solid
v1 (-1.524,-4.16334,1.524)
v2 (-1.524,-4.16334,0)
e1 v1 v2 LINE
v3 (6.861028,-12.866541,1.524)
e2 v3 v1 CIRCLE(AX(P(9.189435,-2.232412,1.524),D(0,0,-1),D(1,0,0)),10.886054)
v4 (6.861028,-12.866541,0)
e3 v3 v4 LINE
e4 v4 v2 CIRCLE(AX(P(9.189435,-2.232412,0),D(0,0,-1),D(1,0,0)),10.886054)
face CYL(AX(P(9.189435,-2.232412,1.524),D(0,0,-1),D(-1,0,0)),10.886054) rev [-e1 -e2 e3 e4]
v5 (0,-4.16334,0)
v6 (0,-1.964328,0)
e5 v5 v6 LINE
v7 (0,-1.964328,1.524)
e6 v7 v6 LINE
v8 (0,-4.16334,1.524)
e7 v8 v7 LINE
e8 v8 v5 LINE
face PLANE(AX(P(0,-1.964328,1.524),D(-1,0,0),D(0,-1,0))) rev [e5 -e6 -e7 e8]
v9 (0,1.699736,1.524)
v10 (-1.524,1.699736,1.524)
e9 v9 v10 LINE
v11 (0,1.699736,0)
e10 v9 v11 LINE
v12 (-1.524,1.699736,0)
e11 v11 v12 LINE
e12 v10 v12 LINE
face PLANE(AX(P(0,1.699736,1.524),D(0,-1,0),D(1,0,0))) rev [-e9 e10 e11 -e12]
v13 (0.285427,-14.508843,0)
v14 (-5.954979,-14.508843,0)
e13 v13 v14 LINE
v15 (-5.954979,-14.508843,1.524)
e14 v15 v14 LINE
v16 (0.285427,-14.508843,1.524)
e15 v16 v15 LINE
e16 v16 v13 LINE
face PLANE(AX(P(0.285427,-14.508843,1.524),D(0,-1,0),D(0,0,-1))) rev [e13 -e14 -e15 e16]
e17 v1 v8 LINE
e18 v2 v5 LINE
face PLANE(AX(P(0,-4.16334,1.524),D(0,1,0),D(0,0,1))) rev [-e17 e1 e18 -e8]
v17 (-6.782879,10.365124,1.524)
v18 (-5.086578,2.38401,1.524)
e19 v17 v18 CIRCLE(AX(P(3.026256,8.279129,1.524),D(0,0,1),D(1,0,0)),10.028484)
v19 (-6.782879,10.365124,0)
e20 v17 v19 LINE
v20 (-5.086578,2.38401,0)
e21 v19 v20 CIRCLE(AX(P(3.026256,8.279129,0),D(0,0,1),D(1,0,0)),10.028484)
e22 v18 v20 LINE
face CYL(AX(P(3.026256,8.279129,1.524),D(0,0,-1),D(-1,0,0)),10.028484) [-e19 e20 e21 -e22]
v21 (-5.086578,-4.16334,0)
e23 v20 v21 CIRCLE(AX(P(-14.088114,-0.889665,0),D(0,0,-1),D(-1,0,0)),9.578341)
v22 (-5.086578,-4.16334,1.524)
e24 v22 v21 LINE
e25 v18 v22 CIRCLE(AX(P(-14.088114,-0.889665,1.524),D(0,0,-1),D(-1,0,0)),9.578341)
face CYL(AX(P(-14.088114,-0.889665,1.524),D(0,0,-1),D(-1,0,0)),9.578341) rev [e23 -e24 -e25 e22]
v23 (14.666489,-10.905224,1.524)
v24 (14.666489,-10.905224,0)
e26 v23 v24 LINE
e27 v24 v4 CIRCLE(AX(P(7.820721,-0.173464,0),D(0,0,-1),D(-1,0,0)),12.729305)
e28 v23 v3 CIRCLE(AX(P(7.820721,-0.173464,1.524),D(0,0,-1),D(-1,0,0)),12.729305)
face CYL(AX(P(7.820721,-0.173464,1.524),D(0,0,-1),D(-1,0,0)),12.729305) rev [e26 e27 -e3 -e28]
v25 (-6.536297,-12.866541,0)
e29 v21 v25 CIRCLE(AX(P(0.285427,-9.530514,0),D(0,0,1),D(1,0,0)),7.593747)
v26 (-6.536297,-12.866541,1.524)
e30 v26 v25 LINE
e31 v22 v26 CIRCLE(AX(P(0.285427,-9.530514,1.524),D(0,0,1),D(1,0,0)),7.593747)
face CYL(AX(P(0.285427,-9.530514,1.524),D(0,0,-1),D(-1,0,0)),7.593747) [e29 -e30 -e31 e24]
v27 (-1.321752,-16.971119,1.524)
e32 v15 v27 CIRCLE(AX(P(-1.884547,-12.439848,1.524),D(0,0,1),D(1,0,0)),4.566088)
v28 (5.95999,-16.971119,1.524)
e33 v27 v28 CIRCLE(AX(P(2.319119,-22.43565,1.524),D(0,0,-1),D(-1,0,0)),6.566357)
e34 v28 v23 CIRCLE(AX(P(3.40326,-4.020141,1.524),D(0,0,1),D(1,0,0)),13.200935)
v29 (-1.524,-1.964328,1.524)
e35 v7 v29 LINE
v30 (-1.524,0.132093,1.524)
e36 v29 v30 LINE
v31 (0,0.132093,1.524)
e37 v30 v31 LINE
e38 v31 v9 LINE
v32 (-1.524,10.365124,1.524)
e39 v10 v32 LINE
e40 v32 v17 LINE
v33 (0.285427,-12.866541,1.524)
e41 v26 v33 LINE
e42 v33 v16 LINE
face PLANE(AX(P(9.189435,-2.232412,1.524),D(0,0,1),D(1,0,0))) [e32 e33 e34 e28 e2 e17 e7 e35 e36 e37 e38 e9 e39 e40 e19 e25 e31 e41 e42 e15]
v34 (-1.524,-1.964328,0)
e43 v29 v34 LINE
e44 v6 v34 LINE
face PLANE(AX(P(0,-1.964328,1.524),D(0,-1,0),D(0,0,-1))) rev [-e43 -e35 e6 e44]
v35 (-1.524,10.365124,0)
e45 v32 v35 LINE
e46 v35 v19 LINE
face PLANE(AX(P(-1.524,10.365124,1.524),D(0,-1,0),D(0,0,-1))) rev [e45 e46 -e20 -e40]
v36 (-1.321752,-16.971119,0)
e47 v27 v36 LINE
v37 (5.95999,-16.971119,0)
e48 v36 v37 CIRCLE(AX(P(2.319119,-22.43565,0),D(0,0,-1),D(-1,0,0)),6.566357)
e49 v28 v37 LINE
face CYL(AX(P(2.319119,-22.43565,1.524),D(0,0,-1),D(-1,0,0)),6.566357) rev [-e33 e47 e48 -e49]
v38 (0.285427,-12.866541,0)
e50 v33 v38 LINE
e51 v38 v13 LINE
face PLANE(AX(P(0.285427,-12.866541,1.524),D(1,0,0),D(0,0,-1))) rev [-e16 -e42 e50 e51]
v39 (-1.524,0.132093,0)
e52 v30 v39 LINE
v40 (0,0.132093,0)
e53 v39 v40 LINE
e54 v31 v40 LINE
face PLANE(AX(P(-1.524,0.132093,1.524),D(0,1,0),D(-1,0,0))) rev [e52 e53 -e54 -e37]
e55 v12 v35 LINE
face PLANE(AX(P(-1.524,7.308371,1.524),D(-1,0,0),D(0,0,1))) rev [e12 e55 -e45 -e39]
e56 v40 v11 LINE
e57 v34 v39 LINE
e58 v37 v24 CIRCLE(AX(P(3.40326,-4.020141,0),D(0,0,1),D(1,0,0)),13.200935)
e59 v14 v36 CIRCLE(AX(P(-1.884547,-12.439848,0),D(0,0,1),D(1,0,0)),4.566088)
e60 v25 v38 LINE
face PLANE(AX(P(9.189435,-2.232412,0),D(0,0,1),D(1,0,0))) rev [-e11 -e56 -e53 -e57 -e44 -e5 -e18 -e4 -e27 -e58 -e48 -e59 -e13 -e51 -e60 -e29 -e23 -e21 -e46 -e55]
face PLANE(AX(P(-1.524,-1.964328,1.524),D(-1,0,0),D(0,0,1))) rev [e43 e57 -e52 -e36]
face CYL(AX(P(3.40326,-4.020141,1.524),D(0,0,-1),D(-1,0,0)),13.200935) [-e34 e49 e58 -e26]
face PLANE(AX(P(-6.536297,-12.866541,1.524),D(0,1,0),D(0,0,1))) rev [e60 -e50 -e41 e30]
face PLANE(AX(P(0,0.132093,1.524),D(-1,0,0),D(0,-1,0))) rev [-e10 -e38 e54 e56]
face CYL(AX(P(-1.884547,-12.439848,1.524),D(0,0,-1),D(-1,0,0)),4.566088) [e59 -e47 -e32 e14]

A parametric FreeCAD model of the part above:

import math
import FreeCAD as App
import Part
import Sketcher

V = App.Vector
Q = App.Units.Quantity

doc = App.newDocument("Part")
body = doc.addObject("PartDesign::Body", "Body")

# Sketch on XY plane
sketch1 = doc.addObject("Sketcher::SketchObject", "Sketch")
body.addObject(sketch1)
sketch1.AttachmentSupport = (doc.XY_Plane, [""])
sketch1.MapMode = "FlatFace"
sketch1.addGeometry([
    Part.LineSegment(V(0, -2, 0), V(-1.5, -2, 0)),  # 0
    Part.LineSegment(V(-1.5, -2, 0), V(-1.5, 0.1, 0)),  # 1
    Part.LineSegment(V(-1.5, 0.1, 0), V(0, 0.1, 0)),  # 2
    Part.LineSegment(V(0, 0.1, 0), V(0, 1.7, 0)),  # 3
    Part.LineSegment(V(0, 1.7, 0), V(-1.5, 1.7, 0)),  # 4
    Part.LineSegment(V(-1.5, 1.7, 0), V(-1.5, 10.4, 0)),  # 5
    Part.LineSegment(V(-1.5, 10.4, 0), V(-6.8, 10.4, 0)),  # 6
    Part.ArcOfCircle(Part.Circle(V(3, 8.3, 0), V(0, 0, 1), 10), math.radians(168), math.radians(216)),  # 7
    Part.ArcOfCircle(Part.Circle(V(-14.1, -0.9, 0), V(0, 0, 1), 9.6), math.radians(-20), math.radians(20)),  # 8
    Part.ArcOfCircle(Part.Circle(V(0.3, -9.5, 0), V(0, 0, 1), 7.6), math.radians(135), math.radians(206)),  # 9
    Part.LineSegment(V(-6.5, -12.9, 0), V(0.3, -12.9, 0)),  # 10
    Part.LineSegment(V(0.3, -12.9, 0), V(0.3, -14.5, 0)),  # 11
    Part.LineSegment(V(0.3, -14.5, 0), V(-6, -14.5, 0)),  # 12
    Part.ArcOfCircle(Part.Circle(V(-1.9, -12.4, 0), V(0, 0, 1), 4.6), math.radians(-153), math.radians(-83)),  # 13
    Part.ArcOfCircle(Part.Circle(V(2.3, -22.4, 0), V(0, 0, 1), 6.6), math.radians(56), math.radians(124)),  # 14
    Part.ArcOfCircle(Part.Circle(V(3.4, -4, 0), V(0, 0, 1), 13.2), math.radians(-79), math.radians(-31)),  # 15
    Part.ArcOfCircle(Part.Circle(V(7.8, -0.2, 0), V(0, 0, 1), 12.7), math.radians(-94), math.radians(-57)),  # 16
    Part.ArcOfCircle(Part.Circle(V(9.2, -2.2, 0), V(0, 0, 1), 10.9), math.radians(-170), math.radians(-102)),  # 17
    Part.LineSegment(V(-1.5, -4.2, 0), V(0, -4.2, 0)),  # 18
    Part.LineSegment(V(0, -4.2, 0), V(0, -2, 0)),  # 19
], False)
sketch1.addConstraint([
    Sketcher.Constraint("Coincident", 0, 2, 1, 1),
    Sketcher.Constraint("Coincident", 1, 2, 2, 1),
    Sketcher.Constraint("Coincident", 2, 2, 3, 1),
    Sketcher.Constraint("Coincident", 3, 2, 4, 1),
    Sketcher.Constraint("Coincident", 4, 2, 5, 1),
    Sketcher.Constraint("Coincident", 5, 2, 6, 1),
    Sketcher.Constraint("Coincident", 6, 2, 7, 1),
    Sketcher.Constraint("Coincident", 7, 2, 8, 2),
    Sketcher.Constraint("Coincident", 8, 1, 9, 1),
    Sketcher.Constraint("Coincident", 9, 2, 10, 1),
    Sketcher.Constraint("Coincident", 10, 2, 11, 1),
    Sketcher.Constraint("Coincident", 11, 2, 12, 1),
    Sketcher.Constraint("Coincident", 12, 2, 13, 1),
    Sketcher.Constraint("Coincident", 13, 2, 14, 2),
    Sketcher.Constraint("Coincident", 14, 1, 15, 1),
    Sketcher.Constraint("Coincident", 15, 2, 16, 2),
    Sketcher.Constraint("Coincident", 16, 1, 17, 2),
    Sketcher.Constraint("Coincident", 17, 1, 18, 1),
    Sketcher.Constraint("Coincident", 18, 2, 19, 1),
    Sketcher.Constraint("Coincident", 19, 2, 0, 1),
    Sketcher.Constraint("Horizontal", 0),
    Sketcher.Constraint("Vertical", 1),
    Sketcher.Constraint("Horizontal", 2),
    Sketcher.Constraint("Vertical", 3),
    Sketcher.Constraint("Horizontal", 4),
    Sketcher.Constraint("Vertical", 5),
    Sketcher.Constraint("Horizontal", 6),
    Sketcher.Constraint("Horizontal", 10),
    Sketcher.Constraint("Vertical", 11),
    Sketcher.Constraint("Horizontal", 12),
    Sketcher.Constraint("Horizontal", 18),
    Sketcher.Constraint("Vertical", 19),
    Sketcher.Constraint("PointOnObject", 2, 2, -2),
    Sketcher.Constraint("PointOnObject", 18, 2, -2),
    Sketcher.Constraint("Horizontal", 13, 2, 14, 1),
    Sketcher.Constraint("Horizontal", 10, 2, 16, 1),
    Sketcher.Constraint("Horizontal", 8, 1, 17, 1),
    Sketcher.Constraint("Vertical", 1, 2, 4, 2),
    Sketcher.Constraint("Vertical", 7, 2, 8, 1),
    Sketcher.Constraint("Vertical", 9, 3, 10, 2),
    Sketcher.Constraint("Vertical", 5, 2, 17, 1),
    Sketcher.Constraint("DistanceX", 0, 2, 0, 1, Q("0.06 in")),
    Sketcher.Constraint("Radius", 8, Q("0.3771 in")),
    Sketcher.Constraint("DistanceY", 11, 2, 11, 1, 1.642302),
    Sketcher.Constraint("Radius", 7, 10.028484),
    Sketcher.Constraint("Radius", 9, 7.593747),
    Sketcher.Constraint("Radius", 13, 4.566088),
    Sketcher.Constraint("Radius", 14, 6.566357),
    Sketcher.Constraint("Radius", 15, 13.200935),
    Sketcher.Constraint("Radius", 16, 12.729305),
    Sketcher.Constraint("Radius", 17, 10.886054),
    Sketcher.Constraint("DistanceX", 6, 2, 6, 1, 5.258879),
    Sketcher.Constraint("DistanceY", 1, 1, 1, 2, 2.09642),
    Sketcher.Constraint("DistanceY", 5, 1, 5, 2, 8.665389),
    Sketcher.Constraint("DistanceY", 8, 3, 16, 3, 0.716201),
    Sketcher.Constraint("DistanceY", 9, 2, 8, 1, 8.703201),
    Sketcher.Constraint("DistanceY", 10, 2, 15, 3, 8.846399),
    Sketcher.Constraint("DistanceX", 14, 1, 15, 2, 8.706499),
    Sketcher.Constraint("DistanceX", 10, 2, 16, 1, 6.575602),
    Sketcher.Constraint("DistanceX", 10, 1, 10, 2, 6.821724),
    Sketcher.Constraint("DistanceX", 12, 2, 12, 1, 6.240405),
    Sketcher.Constraint("DistanceY", 3, 1, 3, 2, 1.567643),
    Sketcher.Constraint("DistanceY", 19, 1, 19, 2, 2.199013),
    Sketcher.Constraint("DistanceY", -1, 1, 7, 3, 8.279129),
    Sketcher.Constraint("DistanceX", -1, 1, 14, 3, 2.319119),
    Sketcher.Constraint("DistanceY", 14, 3, -1, 1, 22.43565),
    Sketcher.Constraint("DistanceX", -1, 1, 15, 3, 3.40326),
    Sketcher.Constraint("DistanceY", 15, 3, -1, 1, 4.020141),
])
pad1 = doc.addObject("PartDesign::Pad", "Pad")
body.addObject(pad1)
pad1.Profile = sketch1
pad1.Length = Q("0.06 in")

doc.recompute()
